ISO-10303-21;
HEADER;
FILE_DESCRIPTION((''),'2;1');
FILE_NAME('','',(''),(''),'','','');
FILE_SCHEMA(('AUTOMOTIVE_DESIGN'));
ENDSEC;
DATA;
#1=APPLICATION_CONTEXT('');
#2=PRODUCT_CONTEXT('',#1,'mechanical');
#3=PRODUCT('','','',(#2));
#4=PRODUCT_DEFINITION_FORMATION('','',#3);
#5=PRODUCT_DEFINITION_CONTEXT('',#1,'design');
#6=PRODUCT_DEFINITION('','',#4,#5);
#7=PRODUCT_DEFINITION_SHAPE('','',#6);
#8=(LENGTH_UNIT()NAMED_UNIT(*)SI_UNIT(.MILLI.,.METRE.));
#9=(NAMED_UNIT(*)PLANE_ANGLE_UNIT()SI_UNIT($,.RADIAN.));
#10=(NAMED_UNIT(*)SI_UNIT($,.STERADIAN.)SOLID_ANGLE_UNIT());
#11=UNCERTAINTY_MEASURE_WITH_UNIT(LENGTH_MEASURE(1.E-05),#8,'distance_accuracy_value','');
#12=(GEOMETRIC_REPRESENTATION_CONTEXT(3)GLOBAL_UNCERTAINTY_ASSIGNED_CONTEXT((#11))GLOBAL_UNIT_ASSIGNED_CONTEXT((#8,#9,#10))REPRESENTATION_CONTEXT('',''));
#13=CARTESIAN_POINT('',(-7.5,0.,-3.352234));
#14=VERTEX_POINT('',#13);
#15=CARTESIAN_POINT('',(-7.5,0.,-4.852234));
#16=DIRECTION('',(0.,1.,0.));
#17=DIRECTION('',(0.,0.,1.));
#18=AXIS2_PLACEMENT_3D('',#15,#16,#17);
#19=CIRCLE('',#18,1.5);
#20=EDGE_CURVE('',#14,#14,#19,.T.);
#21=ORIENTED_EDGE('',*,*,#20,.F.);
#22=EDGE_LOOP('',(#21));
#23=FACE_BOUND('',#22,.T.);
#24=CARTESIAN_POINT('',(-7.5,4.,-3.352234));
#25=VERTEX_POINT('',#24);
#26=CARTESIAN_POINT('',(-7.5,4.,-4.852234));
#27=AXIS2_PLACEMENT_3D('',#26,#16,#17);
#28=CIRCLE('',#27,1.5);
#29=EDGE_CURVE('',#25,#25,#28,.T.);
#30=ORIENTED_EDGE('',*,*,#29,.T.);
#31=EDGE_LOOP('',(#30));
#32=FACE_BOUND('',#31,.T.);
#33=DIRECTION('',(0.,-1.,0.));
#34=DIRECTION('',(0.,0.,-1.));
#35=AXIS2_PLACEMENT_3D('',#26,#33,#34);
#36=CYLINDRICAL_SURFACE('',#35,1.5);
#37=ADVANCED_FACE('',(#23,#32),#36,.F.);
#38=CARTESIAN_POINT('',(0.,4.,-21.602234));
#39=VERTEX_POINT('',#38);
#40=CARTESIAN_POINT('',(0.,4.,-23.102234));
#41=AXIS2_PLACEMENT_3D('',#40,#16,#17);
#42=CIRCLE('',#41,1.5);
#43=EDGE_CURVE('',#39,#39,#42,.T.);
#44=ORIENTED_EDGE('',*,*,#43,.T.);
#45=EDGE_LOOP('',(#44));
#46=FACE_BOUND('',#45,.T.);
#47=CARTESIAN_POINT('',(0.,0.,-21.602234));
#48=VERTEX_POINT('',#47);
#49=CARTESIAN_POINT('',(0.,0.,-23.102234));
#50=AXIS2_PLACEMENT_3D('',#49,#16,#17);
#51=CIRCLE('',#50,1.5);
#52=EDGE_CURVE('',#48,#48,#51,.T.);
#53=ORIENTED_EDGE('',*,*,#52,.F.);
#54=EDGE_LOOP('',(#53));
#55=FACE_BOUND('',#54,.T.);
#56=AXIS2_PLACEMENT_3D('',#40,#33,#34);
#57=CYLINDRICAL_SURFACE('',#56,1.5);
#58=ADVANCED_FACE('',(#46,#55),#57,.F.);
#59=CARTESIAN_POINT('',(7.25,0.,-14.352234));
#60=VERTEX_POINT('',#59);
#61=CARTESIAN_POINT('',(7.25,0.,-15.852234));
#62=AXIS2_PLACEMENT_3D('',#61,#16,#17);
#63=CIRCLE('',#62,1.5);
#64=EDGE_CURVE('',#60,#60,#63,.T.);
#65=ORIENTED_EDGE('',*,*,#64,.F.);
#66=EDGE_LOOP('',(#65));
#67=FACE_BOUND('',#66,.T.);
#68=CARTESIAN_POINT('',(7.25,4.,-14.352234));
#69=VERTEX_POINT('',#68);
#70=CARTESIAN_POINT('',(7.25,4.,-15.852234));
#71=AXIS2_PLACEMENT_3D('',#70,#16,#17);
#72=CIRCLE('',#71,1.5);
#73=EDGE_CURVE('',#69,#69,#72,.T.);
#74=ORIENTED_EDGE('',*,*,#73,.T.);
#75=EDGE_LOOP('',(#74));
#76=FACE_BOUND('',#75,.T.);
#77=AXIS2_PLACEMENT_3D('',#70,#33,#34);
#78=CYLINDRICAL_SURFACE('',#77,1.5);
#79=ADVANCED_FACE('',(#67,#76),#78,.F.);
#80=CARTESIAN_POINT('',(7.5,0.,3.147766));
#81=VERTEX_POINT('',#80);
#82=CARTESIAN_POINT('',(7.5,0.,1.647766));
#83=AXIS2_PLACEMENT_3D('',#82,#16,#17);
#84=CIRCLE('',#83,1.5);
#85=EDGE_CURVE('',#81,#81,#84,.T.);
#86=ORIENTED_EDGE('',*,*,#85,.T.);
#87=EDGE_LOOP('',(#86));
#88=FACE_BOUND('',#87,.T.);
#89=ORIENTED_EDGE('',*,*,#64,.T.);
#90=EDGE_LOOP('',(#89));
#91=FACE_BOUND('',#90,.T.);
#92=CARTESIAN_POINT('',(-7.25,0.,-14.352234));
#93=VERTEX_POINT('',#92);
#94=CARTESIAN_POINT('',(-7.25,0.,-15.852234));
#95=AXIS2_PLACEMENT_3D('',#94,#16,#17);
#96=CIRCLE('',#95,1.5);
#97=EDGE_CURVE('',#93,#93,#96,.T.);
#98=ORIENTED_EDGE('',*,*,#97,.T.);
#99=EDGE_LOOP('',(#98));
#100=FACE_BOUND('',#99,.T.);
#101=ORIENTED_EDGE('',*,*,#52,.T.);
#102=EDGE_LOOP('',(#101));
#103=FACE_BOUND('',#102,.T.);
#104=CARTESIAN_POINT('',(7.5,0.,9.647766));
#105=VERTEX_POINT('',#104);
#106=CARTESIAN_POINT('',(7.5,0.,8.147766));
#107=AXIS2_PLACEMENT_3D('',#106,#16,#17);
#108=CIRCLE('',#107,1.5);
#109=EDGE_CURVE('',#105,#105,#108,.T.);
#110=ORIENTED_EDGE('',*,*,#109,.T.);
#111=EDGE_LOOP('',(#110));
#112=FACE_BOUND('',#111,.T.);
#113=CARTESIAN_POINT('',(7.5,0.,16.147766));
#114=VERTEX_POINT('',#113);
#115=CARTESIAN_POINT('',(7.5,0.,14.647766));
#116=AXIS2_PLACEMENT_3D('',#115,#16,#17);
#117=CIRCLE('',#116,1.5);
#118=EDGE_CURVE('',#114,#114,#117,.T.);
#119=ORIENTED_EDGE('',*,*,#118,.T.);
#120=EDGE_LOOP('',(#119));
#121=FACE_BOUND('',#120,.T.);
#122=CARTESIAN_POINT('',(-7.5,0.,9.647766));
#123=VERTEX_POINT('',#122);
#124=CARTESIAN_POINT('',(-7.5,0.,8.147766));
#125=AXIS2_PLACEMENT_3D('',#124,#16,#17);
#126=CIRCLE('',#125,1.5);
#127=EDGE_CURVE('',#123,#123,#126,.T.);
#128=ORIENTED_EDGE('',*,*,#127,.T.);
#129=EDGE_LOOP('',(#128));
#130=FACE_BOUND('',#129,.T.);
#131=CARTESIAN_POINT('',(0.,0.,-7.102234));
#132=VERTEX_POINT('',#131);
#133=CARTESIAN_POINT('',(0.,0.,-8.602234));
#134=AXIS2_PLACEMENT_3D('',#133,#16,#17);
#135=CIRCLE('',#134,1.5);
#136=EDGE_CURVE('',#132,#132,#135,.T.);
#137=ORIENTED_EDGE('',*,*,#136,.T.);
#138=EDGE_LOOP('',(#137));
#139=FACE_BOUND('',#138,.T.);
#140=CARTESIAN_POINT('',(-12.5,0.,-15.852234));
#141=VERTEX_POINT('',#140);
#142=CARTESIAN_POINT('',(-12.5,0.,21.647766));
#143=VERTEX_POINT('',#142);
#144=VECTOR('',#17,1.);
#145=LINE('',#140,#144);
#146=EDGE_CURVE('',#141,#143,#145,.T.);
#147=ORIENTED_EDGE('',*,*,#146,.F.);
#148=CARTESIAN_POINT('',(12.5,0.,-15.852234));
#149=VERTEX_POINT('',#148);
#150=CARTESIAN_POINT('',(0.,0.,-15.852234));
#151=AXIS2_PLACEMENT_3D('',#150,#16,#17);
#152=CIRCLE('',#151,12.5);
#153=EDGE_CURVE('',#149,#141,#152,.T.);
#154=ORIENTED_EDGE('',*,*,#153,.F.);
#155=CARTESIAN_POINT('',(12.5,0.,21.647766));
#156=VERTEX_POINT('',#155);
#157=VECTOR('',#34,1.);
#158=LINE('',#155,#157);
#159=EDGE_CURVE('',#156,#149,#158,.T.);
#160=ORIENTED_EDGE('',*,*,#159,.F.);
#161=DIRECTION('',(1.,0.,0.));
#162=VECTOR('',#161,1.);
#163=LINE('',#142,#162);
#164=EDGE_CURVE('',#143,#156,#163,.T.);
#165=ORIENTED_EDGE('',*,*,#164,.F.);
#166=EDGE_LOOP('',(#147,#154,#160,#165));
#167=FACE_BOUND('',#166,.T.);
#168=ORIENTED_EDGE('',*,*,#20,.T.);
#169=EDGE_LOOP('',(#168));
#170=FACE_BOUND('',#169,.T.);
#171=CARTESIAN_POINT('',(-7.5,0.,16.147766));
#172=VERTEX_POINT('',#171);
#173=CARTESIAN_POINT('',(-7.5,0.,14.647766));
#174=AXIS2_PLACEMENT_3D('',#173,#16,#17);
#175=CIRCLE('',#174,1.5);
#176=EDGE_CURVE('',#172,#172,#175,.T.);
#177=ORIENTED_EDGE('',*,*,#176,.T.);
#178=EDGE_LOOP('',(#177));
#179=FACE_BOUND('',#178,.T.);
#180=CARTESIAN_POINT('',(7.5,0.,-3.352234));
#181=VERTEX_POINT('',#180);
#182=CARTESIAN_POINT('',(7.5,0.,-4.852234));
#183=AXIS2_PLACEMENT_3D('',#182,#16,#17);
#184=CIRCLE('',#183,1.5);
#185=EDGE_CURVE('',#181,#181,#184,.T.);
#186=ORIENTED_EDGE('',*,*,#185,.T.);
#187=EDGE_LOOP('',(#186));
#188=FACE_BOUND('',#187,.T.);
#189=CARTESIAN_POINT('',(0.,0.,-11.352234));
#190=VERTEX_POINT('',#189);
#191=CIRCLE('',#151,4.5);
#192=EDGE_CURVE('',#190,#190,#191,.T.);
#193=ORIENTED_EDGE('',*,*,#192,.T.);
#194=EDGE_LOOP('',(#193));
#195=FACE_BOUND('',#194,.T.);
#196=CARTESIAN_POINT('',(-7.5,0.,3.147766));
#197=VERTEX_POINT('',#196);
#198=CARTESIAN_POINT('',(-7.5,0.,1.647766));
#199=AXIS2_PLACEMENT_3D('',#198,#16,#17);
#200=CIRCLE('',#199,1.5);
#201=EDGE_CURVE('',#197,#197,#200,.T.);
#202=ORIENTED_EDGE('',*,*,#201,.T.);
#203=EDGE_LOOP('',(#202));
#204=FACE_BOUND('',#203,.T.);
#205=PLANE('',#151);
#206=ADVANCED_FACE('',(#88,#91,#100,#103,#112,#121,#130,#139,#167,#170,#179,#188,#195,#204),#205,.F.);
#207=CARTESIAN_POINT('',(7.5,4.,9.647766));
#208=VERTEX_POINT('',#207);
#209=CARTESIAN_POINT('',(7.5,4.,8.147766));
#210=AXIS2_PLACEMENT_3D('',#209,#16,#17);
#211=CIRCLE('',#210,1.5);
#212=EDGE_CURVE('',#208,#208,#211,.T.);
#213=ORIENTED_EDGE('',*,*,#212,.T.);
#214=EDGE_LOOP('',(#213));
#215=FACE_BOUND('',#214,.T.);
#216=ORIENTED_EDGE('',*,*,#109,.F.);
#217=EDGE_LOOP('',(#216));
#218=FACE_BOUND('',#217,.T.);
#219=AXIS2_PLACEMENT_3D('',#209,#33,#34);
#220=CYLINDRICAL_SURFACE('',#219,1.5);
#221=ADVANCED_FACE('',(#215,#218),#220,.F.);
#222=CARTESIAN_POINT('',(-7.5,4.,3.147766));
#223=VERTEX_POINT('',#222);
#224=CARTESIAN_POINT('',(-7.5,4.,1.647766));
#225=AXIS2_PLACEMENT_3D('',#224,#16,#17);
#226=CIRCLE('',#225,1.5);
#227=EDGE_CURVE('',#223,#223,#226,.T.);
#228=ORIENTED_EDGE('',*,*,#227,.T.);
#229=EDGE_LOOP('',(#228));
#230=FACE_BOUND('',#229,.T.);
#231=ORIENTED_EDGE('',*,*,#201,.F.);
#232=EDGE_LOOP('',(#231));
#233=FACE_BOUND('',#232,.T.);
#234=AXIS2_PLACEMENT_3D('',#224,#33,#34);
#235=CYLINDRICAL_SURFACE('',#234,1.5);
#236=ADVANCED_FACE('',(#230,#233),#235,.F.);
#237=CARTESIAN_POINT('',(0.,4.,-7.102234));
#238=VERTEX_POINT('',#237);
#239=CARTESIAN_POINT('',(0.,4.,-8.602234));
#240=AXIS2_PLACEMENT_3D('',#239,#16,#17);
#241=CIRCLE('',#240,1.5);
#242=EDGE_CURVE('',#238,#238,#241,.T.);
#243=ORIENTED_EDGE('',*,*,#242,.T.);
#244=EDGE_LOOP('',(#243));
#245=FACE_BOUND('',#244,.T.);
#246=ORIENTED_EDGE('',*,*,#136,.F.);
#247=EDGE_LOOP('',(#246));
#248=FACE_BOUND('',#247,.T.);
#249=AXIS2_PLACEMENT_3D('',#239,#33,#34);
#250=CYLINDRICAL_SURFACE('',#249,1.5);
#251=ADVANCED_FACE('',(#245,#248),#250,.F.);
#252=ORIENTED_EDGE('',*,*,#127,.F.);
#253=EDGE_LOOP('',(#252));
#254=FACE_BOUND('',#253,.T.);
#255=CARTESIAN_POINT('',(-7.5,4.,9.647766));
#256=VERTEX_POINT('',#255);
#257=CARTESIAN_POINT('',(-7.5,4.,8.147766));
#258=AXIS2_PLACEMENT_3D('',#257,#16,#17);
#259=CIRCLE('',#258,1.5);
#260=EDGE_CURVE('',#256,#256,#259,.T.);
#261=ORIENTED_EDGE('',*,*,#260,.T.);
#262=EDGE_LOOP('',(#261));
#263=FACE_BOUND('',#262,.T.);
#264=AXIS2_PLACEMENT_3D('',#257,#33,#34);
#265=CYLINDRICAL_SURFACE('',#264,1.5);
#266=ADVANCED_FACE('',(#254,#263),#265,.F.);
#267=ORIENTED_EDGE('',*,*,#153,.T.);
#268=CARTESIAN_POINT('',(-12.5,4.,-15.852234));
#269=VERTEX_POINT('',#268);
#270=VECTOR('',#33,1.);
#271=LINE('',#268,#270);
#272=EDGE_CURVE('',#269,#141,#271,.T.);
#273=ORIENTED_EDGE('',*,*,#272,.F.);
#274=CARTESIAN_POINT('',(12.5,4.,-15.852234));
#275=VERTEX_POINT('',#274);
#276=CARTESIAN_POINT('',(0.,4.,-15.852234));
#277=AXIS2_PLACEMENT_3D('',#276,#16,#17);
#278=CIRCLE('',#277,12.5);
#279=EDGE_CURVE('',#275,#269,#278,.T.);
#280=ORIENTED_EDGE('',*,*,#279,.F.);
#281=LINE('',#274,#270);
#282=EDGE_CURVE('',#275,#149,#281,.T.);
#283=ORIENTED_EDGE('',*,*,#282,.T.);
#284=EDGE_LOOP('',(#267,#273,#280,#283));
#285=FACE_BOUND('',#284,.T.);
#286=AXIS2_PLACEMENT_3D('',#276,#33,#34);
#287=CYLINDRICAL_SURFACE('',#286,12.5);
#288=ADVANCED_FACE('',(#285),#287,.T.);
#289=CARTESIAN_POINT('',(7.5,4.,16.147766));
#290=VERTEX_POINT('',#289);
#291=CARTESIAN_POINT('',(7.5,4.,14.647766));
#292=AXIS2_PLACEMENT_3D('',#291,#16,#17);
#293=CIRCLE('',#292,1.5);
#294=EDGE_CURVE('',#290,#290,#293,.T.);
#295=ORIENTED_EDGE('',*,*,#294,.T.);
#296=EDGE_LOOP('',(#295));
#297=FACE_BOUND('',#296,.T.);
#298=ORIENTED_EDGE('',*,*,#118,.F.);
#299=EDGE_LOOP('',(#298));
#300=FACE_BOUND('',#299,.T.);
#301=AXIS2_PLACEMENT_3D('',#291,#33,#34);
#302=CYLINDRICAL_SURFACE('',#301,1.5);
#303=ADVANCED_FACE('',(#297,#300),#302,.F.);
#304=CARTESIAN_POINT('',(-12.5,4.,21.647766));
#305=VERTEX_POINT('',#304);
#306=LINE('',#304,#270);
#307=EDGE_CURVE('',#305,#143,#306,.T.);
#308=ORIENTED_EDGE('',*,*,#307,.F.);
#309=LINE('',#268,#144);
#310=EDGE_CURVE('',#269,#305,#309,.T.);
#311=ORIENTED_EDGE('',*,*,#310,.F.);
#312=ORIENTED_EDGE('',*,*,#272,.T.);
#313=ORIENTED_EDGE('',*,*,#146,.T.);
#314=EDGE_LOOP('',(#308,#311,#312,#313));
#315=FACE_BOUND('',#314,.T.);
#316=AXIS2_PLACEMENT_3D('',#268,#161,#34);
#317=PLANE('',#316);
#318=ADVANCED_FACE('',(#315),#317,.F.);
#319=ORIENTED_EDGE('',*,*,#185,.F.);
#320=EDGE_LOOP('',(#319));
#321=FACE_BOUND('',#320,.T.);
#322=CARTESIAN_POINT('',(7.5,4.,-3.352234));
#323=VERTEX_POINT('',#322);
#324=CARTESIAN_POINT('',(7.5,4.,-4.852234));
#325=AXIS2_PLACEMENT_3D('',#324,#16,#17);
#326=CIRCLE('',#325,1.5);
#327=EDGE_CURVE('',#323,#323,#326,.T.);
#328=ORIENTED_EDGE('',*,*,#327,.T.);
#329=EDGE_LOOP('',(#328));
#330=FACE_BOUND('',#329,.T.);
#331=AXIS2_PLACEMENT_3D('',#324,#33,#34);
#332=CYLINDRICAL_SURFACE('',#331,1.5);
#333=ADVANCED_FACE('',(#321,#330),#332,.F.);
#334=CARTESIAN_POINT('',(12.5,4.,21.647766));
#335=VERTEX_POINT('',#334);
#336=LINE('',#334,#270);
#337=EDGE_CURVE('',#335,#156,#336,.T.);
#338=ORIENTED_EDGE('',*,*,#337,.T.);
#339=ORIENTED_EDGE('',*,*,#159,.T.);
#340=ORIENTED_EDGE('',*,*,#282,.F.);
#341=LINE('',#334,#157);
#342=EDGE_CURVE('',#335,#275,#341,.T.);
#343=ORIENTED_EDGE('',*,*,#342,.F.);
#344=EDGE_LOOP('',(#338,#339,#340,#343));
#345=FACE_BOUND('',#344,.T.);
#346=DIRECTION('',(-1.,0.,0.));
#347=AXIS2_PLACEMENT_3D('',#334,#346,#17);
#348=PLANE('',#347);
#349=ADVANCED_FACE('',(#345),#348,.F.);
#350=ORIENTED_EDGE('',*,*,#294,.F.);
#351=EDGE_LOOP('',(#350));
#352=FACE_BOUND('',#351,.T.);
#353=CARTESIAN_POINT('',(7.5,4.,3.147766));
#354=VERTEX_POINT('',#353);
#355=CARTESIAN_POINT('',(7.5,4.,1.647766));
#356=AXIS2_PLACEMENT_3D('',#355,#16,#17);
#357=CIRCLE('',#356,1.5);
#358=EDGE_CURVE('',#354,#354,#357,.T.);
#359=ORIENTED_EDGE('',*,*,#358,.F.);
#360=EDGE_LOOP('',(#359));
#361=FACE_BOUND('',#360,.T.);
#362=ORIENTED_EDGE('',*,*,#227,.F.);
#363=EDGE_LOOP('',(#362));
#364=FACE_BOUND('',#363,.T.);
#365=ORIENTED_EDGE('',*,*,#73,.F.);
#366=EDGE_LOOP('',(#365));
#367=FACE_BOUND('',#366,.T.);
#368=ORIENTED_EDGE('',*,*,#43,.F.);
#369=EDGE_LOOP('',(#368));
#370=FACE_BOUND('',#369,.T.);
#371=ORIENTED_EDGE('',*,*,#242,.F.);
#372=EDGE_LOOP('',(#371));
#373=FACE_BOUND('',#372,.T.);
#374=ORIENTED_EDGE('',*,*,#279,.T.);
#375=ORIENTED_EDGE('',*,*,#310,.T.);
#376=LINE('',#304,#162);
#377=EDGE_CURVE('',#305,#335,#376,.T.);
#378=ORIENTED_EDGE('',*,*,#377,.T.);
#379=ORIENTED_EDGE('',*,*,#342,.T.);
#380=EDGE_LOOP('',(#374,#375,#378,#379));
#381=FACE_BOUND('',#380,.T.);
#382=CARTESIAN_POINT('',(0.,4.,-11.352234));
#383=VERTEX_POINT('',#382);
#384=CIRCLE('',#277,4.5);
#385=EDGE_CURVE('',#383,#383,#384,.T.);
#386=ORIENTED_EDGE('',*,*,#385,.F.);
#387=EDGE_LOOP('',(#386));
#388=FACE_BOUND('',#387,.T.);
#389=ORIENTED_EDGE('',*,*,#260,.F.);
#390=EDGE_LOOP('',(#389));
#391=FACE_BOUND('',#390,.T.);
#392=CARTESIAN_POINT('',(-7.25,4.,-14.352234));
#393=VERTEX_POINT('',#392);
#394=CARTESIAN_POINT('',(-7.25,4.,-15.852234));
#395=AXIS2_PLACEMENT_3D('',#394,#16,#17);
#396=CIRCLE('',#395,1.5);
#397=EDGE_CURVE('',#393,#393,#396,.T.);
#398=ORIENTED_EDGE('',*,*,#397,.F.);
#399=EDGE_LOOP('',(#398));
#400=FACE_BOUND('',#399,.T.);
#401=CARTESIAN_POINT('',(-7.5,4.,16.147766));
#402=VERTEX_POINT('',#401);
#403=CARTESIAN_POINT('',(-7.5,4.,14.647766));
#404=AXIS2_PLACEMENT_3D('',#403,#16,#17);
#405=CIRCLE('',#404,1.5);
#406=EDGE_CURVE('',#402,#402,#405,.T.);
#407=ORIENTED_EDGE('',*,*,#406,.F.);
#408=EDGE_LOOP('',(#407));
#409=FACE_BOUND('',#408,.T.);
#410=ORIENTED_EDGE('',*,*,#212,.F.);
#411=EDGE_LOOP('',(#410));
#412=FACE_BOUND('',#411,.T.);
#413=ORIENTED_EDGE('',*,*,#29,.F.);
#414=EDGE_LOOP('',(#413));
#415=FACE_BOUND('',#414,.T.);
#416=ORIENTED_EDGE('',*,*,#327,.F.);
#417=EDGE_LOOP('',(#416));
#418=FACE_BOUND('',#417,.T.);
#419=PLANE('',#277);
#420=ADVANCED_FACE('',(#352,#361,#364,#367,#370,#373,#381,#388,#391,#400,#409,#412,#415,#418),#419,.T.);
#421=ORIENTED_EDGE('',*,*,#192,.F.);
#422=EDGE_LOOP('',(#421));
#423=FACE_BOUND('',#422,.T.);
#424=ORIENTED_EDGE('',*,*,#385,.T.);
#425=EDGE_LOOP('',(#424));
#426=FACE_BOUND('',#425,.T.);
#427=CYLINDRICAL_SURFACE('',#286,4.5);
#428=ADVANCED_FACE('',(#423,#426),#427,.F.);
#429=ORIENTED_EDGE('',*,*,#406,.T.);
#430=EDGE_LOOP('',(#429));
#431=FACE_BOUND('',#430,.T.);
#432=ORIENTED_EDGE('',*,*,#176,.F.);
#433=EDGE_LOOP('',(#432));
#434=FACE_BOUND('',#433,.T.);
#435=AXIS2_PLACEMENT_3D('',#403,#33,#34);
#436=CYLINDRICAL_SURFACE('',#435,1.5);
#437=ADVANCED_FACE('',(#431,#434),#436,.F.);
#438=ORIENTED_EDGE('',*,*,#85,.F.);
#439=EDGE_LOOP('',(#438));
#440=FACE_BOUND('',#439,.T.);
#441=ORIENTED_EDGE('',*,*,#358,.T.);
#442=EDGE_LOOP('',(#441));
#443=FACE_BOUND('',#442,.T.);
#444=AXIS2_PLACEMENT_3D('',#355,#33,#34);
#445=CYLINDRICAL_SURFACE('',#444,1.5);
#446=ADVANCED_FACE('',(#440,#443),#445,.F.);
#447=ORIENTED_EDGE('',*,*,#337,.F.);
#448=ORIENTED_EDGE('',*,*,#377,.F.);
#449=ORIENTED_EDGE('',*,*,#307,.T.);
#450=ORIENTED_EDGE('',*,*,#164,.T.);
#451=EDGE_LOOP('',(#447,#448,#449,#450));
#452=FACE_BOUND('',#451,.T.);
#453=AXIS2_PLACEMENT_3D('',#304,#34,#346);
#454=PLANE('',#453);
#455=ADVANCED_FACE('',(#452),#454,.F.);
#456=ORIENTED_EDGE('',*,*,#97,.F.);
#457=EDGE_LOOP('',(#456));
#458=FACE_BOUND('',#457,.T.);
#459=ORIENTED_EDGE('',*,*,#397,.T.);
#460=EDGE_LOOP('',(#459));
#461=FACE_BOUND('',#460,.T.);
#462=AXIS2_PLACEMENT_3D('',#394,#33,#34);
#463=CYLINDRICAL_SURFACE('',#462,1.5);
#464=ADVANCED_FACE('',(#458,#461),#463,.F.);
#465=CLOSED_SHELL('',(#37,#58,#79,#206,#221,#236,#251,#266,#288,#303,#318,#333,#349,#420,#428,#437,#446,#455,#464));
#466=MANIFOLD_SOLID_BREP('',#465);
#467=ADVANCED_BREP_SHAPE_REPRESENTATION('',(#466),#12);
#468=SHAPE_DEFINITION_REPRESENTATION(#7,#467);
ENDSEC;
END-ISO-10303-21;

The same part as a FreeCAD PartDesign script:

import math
import FreeCAD as App
import Part
import Sketcher

V = App.Vector
Q = App.Units.Quantity

doc = App.newDocument("Part")
body = doc.addObject("PartDesign::Body", "Body")

sketch1 = doc.addObject("Sketcher::SketchObject", "Sketch")
body.addObject(sketch1)
sketch1.AttachmentSupport = (doc.XZ_Plane, [""])
sketch1.MapMode = "FlatFace"
sketch1.addGeometry(Part.LineSegment(V(-12.5, -15.9, 0), V(-12.5, 21.6, 0)), False)
sketch1.addGeometry(Part.LineSegment(V(-12.5, 21.6, 0), V(12.5, 21.6, 0)), False)
sketch1.addGeometry(Part.LineSegment(V(12.5, 21.6, 0), V(12.5, -15.9, 0)), False)
sketch1.addGeometry(Part.ArcOfCircle(Part.Circle(V(0, -15.9, 0), V(0, 0, 1), 12.5), math.radians(180), math.radians(360)), False)
sketch1.addGeometry(Part.Circle(V(-7.5, 14.6, 0), V(0, 0, 1), 1.5), False)
sketch1.addGeometry(Part.Circle(V(-7.5, 8.1, 0), V(0, 0, 1), 1.5), False)
sketch1.addGeometry(Part.Circle(V(-7.5, 1.6, 0), V(0, 0, 1), 1.5), False)
sketch1.addGeometry(Part.Circle(V(7.5, 14.6, 0), V(0, 0, 1), 1.5), False)
sketch1.addGeometry(Part.Circle(V(7.5, 8.1, 0), V(0, 0, 1), 1.5), False)
sketch1.addGeometry(Part.Circle(V(7.5, 1.6, 0), V(0, 0, 1), 1.5), False)
sketch1.addGeometry(Part.Circle(V(-7.5, -4.9, 0), V(0, 0, 1), 1.5), False)
sketch1.addGeometry(Part.Circle(V(-7.2, -15.9, 0), V(0, 0, 1), 1.5), False)
sketch1.addGeometry(Part.Circle(V(0, -8.6, 0), V(0, 0, 1), 1.5), False)
sketch1.addGeometry(Part.Circle(V(7.5, -4.9, 0), V(0, 0, 1), 1.5), False)
sketch1.addGeometry(Part.Circle(V(0, -15.9, 0), V(0, 0, 1), 4.5), False)
sketch1.addGeometry(Part.Circle(V(0, -23.1, 0), V(0, 0, 1), 1.5), False)
sketch1.addGeometry(Part.Circle(V(7.2, -15.9, 0), V(0, 0, 1), 1.5), False)
sketch1.addConstraint(Sketcher.Constraint("Coincident", 0, 2, 1, 1))
sketch1.addConstraint(Sketcher.Constraint("Coincident", 1, 2, 2, 1))
sketch1.addConstraint(Sketcher.Constraint("Tangent", 2, 2, 3, 2))
sketch1.addConstraint(Sketcher.Constraint("Tangent", 3, 1, 0, 1))
sketch1.addConstraint(Sketcher.Constraint("Vertical", 0))
sketch1.addConstraint(Sketcher.Constraint("Horizontal", 1))
sketch1.addConstraint(Sketcher.Constraint("Vertical", 2))
sketch1.addConstraint(Sketcher.Constraint("Coincident", 14, 3, 3, 3))
sketch1.addConstraint(Sketcher.Constraint("Equal", 4, 5))
sketch1.addConstraint(Sketcher.Constraint("Equal", 5, 6))
sketch1.addConstraint(Sketcher.Constraint("Equal", 6, 7))
sketch1.addConstraint(Sketcher.Constraint("Equal", 7, 8))
sketch1.addConstraint(Sketcher.Constraint("Equal", 8, 9))
sketch1.addConstraint(Sketcher.Constraint("Equal", 9, 10))
sketch1.addConstraint(Sketcher.Constraint("Equal", 10, 11))
sketch1.addConstraint(Sketcher.Constraint("Equal", 11, 12))
sketch1.addConstraint(Sketcher.Constraint("Equal", 12, 13))
sketch1.addConstraint(Sketcher.Constraint("Equal", 13, 15))
sketch1.addConstraint(Sketcher.Constraint("Equal", 15, 16))
sketch1.addConstraint(Sketcher.Constraint("Symmetric", 4, 3, 7, 3, -2))
sketch1.addConstraint(Sketcher.Constraint("Symmetric", 5, 3, 8, 3, -2))
sketch1.addConstraint(Sketcher.Constraint("Symmetric", 6, 3, 9, 3, -2))
sketch1.addConstraint(Sketcher.Constraint("Symmetric", 10, 3, 13, 3, -2))
sketch1.addConstraint(Sketcher.Constraint("Symmetric", 11, 3, 16, 3, -2))
sketch1.addConstraint(Sketcher.Constraint("PointOnObject", 3, 3, -2))
sketch1.addConstraint(Sketcher.Constraint("PointOnObject", 12, 3, -2))
sketch1.addConstraint(Sketcher.Constraint("PointOnObject", 15, 3, -2))
sketch1.addConstraint(Sketcher.Constraint("Horizontal", 3, 3, 11, 3))
sketch1.addConstraint(Sketcher.Constraint("Vertical", 4, 3, 5, 3))
sketch1.addConstraint(Sketcher.Constraint("Vertical", 5, 3, 6, 3))
sketch1.addConstraint(Sketcher.Constraint("Vertical", 6, 3, 10, 3))
sketch1.addConstraint(Sketcher.Constraint("Diameter", 4, Q("3 mm")))
sketch1.addConstraint(Sketcher.Constraint("Diameter", 14, Q("9 mm")))
sketch1.addConstraint(Sketcher.Constraint("Radius", 3, Q("12.5 mm")))
sketch1.addConstraint(Sketcher.Constraint("DistanceY", 0, 1, 0, 2, Q("37.5 mm")))
sketch1.addConstraint(Sketcher.Constraint("DistanceY", 3, 3, 5, 3, Q("24 mm")))
sketch1.addConstraint(Sketcher.Constraint("DistanceY", 6, 3, 4, 3, Q("13 mm")))
sketch1.addConstraint(Sketcher.Constraint("DistanceX", 4, 3, 7, 3, Q("15 mm")))
sketch1.addConstraint(Sketcher.Constraint("DistanceY", 10, 3, 5, 3, Q("13 mm")))
sketch1.addConstraint(Sketcher.Constraint("DistanceY", 4, 3, 0, 2, Q("7 mm")))
sketch1.addConstraint(Sketcher.Constraint("DistanceY", 15, 3, 12, 3, Q("14.5 mm")))
sketch1.addConstraint(Sketcher.Constraint("DistanceX", 11, 3, -1, 1, Q("7.25 mm")))
sketch1.addConstraint(Sketcher.Constraint("DistanceY", 3, 3, 12, 3, Q("7.25 mm")))
sketch1.addConstraint(Sketcher.Constraint("DistanceY", 3, 3, -1, 1, Q("15.852234 mm")))
pad1 = doc.addObject("PartDesign::Pad", "Pad")
body.addObject(pad1)
pad1.Profile = sketch1
pad1.Length = 4
pad1.Reversed = True

doc.recompute()
